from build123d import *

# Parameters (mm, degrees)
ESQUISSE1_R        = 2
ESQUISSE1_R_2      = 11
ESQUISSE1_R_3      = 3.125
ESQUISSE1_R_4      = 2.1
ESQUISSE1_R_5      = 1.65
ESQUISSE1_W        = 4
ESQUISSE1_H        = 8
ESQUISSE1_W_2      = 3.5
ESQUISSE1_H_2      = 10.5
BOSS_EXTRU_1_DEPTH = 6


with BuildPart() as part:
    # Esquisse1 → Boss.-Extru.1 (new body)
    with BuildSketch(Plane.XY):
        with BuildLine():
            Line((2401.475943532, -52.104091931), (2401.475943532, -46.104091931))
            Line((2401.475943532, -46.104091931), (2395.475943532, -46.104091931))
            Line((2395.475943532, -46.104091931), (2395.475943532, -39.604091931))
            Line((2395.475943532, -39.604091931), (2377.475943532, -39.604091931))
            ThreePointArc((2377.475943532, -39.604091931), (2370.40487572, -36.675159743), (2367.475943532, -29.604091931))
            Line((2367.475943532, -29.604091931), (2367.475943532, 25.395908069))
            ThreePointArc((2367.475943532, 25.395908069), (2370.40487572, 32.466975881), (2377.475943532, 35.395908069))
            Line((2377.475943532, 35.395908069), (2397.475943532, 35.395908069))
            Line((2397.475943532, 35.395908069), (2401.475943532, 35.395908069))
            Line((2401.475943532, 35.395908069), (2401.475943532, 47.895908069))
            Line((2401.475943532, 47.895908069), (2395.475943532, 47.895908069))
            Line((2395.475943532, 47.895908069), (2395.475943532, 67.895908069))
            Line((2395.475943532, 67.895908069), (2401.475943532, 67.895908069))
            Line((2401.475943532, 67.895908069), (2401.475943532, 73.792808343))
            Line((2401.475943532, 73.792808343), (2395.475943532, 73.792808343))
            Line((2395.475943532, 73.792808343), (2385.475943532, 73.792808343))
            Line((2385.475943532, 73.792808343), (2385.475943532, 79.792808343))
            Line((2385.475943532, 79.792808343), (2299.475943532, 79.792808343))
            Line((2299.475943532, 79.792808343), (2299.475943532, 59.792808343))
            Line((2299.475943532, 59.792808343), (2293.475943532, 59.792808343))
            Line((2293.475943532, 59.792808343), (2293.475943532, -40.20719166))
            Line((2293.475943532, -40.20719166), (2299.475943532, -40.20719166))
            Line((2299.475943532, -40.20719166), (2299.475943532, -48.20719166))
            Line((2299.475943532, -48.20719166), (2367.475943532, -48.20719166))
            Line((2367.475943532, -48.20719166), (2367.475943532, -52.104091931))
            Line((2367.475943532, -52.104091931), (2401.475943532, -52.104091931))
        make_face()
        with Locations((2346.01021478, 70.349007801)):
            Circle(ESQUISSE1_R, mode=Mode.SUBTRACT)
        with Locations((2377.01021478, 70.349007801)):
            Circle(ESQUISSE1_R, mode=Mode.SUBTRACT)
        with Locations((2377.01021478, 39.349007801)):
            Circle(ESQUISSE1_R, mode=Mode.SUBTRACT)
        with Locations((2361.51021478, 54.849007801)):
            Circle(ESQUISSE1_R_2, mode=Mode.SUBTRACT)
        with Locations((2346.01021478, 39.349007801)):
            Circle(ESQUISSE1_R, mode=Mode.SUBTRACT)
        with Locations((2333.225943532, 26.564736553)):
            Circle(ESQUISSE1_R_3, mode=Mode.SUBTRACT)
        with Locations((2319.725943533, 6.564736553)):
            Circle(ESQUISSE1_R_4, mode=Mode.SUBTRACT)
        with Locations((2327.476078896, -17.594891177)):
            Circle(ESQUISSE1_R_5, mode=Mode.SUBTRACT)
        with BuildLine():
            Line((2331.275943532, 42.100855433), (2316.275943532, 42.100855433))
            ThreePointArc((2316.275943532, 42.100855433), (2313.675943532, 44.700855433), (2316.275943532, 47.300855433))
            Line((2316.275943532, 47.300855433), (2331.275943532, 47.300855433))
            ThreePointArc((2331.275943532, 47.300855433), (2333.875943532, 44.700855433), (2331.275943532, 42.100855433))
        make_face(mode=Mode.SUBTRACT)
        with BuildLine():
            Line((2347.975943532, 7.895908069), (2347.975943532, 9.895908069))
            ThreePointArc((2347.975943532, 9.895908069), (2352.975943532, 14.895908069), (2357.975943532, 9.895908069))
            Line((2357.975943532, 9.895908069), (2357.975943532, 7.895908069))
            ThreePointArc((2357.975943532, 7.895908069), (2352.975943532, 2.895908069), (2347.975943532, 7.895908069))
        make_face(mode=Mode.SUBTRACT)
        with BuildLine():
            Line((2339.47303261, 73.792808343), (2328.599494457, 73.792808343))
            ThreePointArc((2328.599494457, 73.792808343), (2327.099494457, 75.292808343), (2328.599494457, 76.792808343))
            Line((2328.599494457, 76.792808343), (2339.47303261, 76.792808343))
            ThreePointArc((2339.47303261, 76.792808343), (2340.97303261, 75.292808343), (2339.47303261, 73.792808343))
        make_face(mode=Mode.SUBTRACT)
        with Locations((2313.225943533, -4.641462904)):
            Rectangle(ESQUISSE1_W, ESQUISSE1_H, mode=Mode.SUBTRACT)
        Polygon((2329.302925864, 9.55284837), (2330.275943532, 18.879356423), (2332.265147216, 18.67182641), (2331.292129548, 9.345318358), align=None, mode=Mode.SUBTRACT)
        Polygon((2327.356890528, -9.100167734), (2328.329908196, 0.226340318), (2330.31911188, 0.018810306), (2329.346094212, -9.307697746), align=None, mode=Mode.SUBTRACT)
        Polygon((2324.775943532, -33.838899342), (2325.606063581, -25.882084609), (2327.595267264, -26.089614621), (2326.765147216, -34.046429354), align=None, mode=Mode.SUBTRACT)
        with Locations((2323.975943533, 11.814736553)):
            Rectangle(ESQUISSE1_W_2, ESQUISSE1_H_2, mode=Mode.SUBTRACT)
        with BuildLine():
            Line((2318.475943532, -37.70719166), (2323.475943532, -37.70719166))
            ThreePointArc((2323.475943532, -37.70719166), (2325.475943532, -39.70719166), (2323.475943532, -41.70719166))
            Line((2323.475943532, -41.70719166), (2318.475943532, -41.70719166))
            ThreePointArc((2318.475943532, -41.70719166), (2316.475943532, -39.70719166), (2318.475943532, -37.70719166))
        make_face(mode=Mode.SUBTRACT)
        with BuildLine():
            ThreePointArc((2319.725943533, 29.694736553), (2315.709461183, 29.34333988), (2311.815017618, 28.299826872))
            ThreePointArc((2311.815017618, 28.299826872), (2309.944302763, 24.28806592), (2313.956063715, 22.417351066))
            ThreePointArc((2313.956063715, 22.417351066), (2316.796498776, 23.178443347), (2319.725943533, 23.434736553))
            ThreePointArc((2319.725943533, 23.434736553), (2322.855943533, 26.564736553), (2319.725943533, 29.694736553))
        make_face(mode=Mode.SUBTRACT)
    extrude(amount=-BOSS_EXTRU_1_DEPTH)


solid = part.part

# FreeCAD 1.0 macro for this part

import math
import FreeCAD as App
import Part
import Sketcher

V = App.Vector


def add_polygon(sketch, points):
    """Adds a closed chain of lines whose ends are joined by coincident constraints."""
    first, n = sketch.GeometryCount, len(points)
    for a, b in zip(points, points[1:] + points[:1]):
        sketch.addGeometry(Part.LineSegment(App.Vector(*a, 0), App.Vector(*b, 0)), False)
    for i in range(n):
        sketch.addConstraint(Sketcher.Constraint("Coincident", first + i, 2, first + (i + 1) % n, 1))

doc = App.newDocument("Part")
params = doc.addObject("Spreadsheet::Sheet", "Params")
for row, (alias, value) in enumerate([
    ("sketch1_diameter", "4 mm"),
    ("sketch1_diameter2", "22 mm"),
    ("sketch1_radius", "10 mm"),
    ("sketch1_radius2", "5 mm"),
    ("sketch1_diameter3", "3.3 mm"),
    ("pad1_length", "6 mm"),
], start=1):
    params.set(f"A{row}", alias)
    params.set(f"B{row}", "=" + value)
    params.setAlias(f"B{row}", alias)

body = doc.addObject("PartDesign::Body", "Body")

# Sketch on XY plane
sketch1 = body.newObject("Sketcher::SketchObject", "Sketch")
sketch1.AttachmentSupport = (doc.getObject("XY_Plane"), [""])
sketch1.MapMode = "FlatFace"
sketch1.addGeometry(Part.LineSegment(V(2401.5, -52.1, 0), V(2401.5, -46.1, 0)), False)  # 0
sketch1.addGeometry(Part.LineSegment(V(2401.5, -46.1, 0), V(2395.5, -46.1, 0)), False)  # 1
sketch1.addGeometry(Part.LineSegment(V(2395.5, -46.1, 0), V(2395.5, -39.6, 0)), False)  # 2
sketch1.addGeometry(Part.LineSegment(V(2395.5, -39.6, 0), V(2377.5, -39.6, 0)), False)  # 3
sketch1.addGeometry(Part.ArcOfCircle(Part.Circle(V(2377.5, -29.6, 0), V(0, 0, 1), 10), math.radians(180), math.radians(270)), False)  # 4
sketch1.addGeometry(Part.LineSegment(V(2367.5, -29.6, 0), V(2367.5, 25.4, 0)), False)  # 5
sketch1.addGeometry(Part.ArcOfCircle(Part.Circle(V(2377.5, 25.4, 0), V(0, 0, 1), 10), math.radians(90), math.radians(180)), False)  # 6
sketch1.addGeometry(Part.LineSegment(V(2377.5, 35.4, 0), V(2401.5, 35.4, 0)), False)  # 7
sketch1.addGeometry(Part.LineSegment(V(2401.5, 35.4, 0), V(2401.5, 47.9, 0)), False)  # 8
sketch1.addGeometry(Part.LineSegment(V(2401.5, 47.9, 0), V(2395.5, 47.9, 0)), False)  # 9
sketch1.addGeometry(Part.LineSegment(V(2395.5, 47.9, 0), V(2395.5, 67.9, 0)), False)  # 10
sketch1.addGeometry(Part.LineSegment(V(2395.5, 67.9, 0), V(2401.5, 67.9, 0)), False)  # 11
sketch1.addGeometry(Part.LineSegment(V(2401.5, 67.9, 0), V(2401.5, 73.8, 0)), False)  # 12
sketch1.addGeometry(Part.LineSegment(V(2401.5, 73.8, 0), V(2385.5, 73.8, 0)), False)  # 13
sketch1.addGeometry(Part.LineSegment(V(2385.5, 73.8, 0), V(2385.5, 79.8, 0)), False)  # 14
sketch1.addGeometry(Part.LineSegment(V(2385.5, 79.8, 0), V(2299.5, 79.8, 0)), False)  # 15
sketch1.addGeometry(Part.LineSegment(V(2299.5, 79.8, 0), V(2299.5, 59.8, 0)), False)  # 16
sketch1.addGeometry(Part.LineSegment(V(2299.5, 59.8, 0), V(2293.5, 59.8, 0)), False)  # 17
sketch1.addGeometry(Part.LineSegment(V(2293.5, 59.8, 0), V(2293.5, -40.2, 0)), False)  # 18
sketch1.addGeometry(Part.LineSegment(V(2293.5, -40.2, 0), V(2299.5, -40.2, 0)), False)  # 19
sketch1.addGeometry(Part.LineSegment(V(2299.5, -40.2, 0), V(2299.5, -48.2, 0)), False)  # 20
sketch1.addGeometry(Part.LineSegment(V(2299.5, -48.2, 0), V(2367.5, -48.2, 0)), False)  # 21
sketch1.addGeometry(Part.LineSegment(V(2367.5, -48.2, 0), V(2367.5, -52.1, 0)), False)  # 22
sketch1.addGeometry(Part.LineSegment(V(2367.5, -52.1, 0), V(2401.5, -52.1, 0)), False)  # 23
sketch1.addGeometry(Part.ArcOfCircle(Part.Circle(V(2318.5, -39.7, 0), V(0, 0, 1), 2), math.radians(90), math.radians(270)), False)  # 24
sketch1.addGeometry(Part.LineSegment(V(2318.5, -37.7, 0), V(2323.5, -37.7, 0)), False)  # 25
sketch1.addGeometry(Part.ArcOfCircle(Part.Circle(V(2323.5, -39.7, 0), V(0, 0, 1), 2), math.radians(-90), math.radians(90)), False)  # 26
sketch1.addGeometry(Part.LineSegment(V(2323.5, -41.7, 0), V(2318.5, -41.7, 0)), False)  # 27
add_polygon(sketch1, [(2326.8, -34), (2324.8, -33.8), (2325.6, -25.9), (2327.6, -26.1)])  # lines 28-31
sketch1.addGeometry(Part.Circle(V(2327.5, -17.6, 0), V(0, 0, 1), 1.6), False)  # 32
add_polygon(sketch1, [(2315.2, -8.6), (2311.2, -8.6), (2311.2, -0.6), (2315.2, -0.6)])  # lines 33-36
sketch1.addGeometry(Part.Circle(V(2319.7, 6.6, 0), V(0, 0, 1), 2.1), False)  # 37
add_polygon(sketch1, [(2325.7, 6.6), (2322.2, 6.6), (2322.2, 17.1), (2325.7, 17.1)])  # lines 38-41
add_polygon(sketch1, [(2329.3, -9.3), (2327.4, -9.1), (2328.3, 0.2), (2330.3, 0)])  # lines 42-45
add_polygon(sketch1, [(2331.3, 9.3), (2329.3, 9.6), (2330.3, 18.9), (2332.3, 18.7)])  # lines 46-49
sketch1.addGeometry(Part.ArcOfCircle(Part.Circle(V(2353, 7.9, 0), V(0, 0, 1), 5), math.radians(180), math.radians(360)), False)  # 50
sketch1.addGeometry(Part.LineSegment(V(2348, 7.9, 0), V(2348, 9.9, 0)), False)  # 51
sketch1.addGeometry(Part.ArcOfCircle(Part.Circle(V(2353, 9.9, 0), V(0, 0, 1), 5), math.radians(0), math.radians(180)), False)  # 52
sketch1.addGeometry(Part.LineSegment(V(2358, 9.9, 0), V(2358, 7.9, 0)), False)  # 53
sketch1.addGeometry(Part.ArcOfCircle(Part.Circle(V(2319.7, 6.6, 0), V(0, 0, 1), 23.1), math.radians(90), math.radians(110)), False)  # 54
sketch1.addGeometry(Part.ArcOfCircle(Part.Circle(V(2319.7, 26.6, 0), V(0, 0, 1), 3.1), math.radians(-90), math.radians(90)), False)  # 55
sketch1.addGeometry(Part.ArcOfCircle(Part.Circle(V(2319.7, 6.6, 0), V(0, 0, 1), 16.9), math.radians(90), math.radians(110)), False)  # 56
sketch1.addGeometry(Part.ArcOfCircle(Part.Circle(V(2312.9, 25.4, 0), V(0, 0, 1), 3.1), math.radians(110), math.radians(290)), False)  # 57
sketch1.addGeometry(Part.ArcOfCircle(Part.Circle(V(2331.3, 44.7, 0), V(0, 0, 1), 2.6), math.radians(-90), math.radians(90)), False)  # 58
sketch1.addGeometry(Part.LineSegment(V(2331.3, 42.1, 0), V(2316.3, 42.1, 0)), False)  # 59
sketch1.addGeometry(Part.ArcOfCircle(Part.Circle(V(2316.3, 44.7, 0), V(0, 0, 1), 2.6), math.radians(90), math.radians(270)), False)  # 60
sketch1.addGeometry(Part.LineSegment(V(2316.3, 47.3, 0), V(2331.3, 47.3, 0)), False)  # 61
sketch1.addGeometry(Part.Circle(V(2333.2, 26.6, 0), V(0, 0, 1), 3.1), False)  # 62
sketch1.addGeometry(Part.ArcOfCircle(Part.Circle(V(2339.5, 75.3, 0), V(0, 0, 1), 1.5), math.radians(-90), math.radians(90)), False)  # 63
sketch1.addGeometry(Part.LineSegment(V(2339.5, 73.8, 0), V(2328.6, 73.8, 0)), False)  # 64
sketch1.addGeometry(Part.ArcOfCircle(Part.Circle(V(2328.6, 75.3, 0), V(0, 0, 1), 1.5), math.radians(90), math.radians(270)), False)  # 65
sketch1.addGeometry(Part.LineSegment(V(2328.6, 76.8, 0), V(2339.5, 76.8, 0)), False)  # 66
sketch1.addGeometry(Part.Circle(V(2346, 39.3, 0), V(0, 0, 1), 2), False)  # 67
sketch1.addGeometry(Part.Circle(V(2377, 39.3, 0), V(0, 0, 1), 2), False)  # 68
sketch1.addGeometry(Part.Circle(V(2361.5, 54.8, 0), V(0, 0, 1), 11), False)  # 69
sketch1.addGeometry(Part.Circle(V(2346, 70.3, 0), V(0, 0, 1), 2), False)  # 70
sketch1.addGeometry(Part.Circle(V(2377, 70.3, 0), V(0, 0, 1), 2), False)  # 71
sketch1.addConstraint(Sketcher.Constraint("Coincident", 0, 2, 1, 1))
sketch1.addConstraint(Sketcher.Constraint("Coincident", 1, 2, 2, 1))
sketch1.addConstraint(Sketcher.Constraint("Coincident", 2, 2, 3, 1))
sketch1.addConstraint(Sketcher.Constraint("Tangent", 3, 2, 4, 2))
sketch1.addConstraint(Sketcher.Constraint("Tangent", 4, 1, 5, 1))
sketch1.addConstraint(Sketcher.Constraint("Tangent", 5, 2, 6, 2))
sketch1.addConstraint(Sketcher.Constraint("Tangent", 6, 1, 7, 1))
sketch1.addConstraint(Sketcher.Constraint("Coincident", 7, 2, 8, 1))
sketch1.addConstraint(Sketcher.Constraint("Coincident", 8, 2, 9, 1))
sketch1.addConstraint(Sketcher.Constraint("Coincident", 9, 2, 10, 1))
sketch1.addConstraint(Sketcher.Constraint("Coincident", 10, 2, 11, 1))
sketch1.addConstraint(Sketcher.Constraint("Coincident", 11, 2, 12, 1))
sketch1.addConstraint(Sketcher.Constraint("Coincident", 12, 2, 13, 1))
sketch1.addConstraint(Sketcher.Constraint("Coincident", 13, 2, 14, 1))
sketch1.addConstraint(Sketcher.Constraint("Coincident", 14, 2, 15, 1))
sketch1.addConstraint(Sketcher.Constraint("Coincident", 15, 2, 16, 1))
sketch1.addConstraint(Sketcher.Constraint("Coincident", 16, 2, 17, 1))
sketch1.addConstraint(Sketcher.Constraint("Coincident", 17, 2, 18, 1))
sketch1.addConstraint(Sketcher.Constraint("Coincident", 18, 2, 19, 1))
sketch1.addConstraint(Sketcher.Constraint("Coincident", 19, 2, 20, 1))
sketch1.addConstraint(Sketcher.Constraint("Coincident", 20, 2, 21, 1))
sketch1.addConstraint(Sketcher.Constraint("Coincident", 21, 2, 22, 1))
sketch1.addConstraint(Sketcher.Constraint("Coincident", 22, 2, 23, 1))
sketch1.addConstraint(Sketcher.Constraint("Coincident", 23, 2, 0, 1))
sketch1.addConstraint(Sketcher.Constraint("Tangent", 24, 1, 25, 1))
sketch1.addConstraint(Sketcher.Constraint("Tangent", 25, 2, 26, 2))
sketch1.addConstraint(Sketcher.Constraint("Tangent", 26, 1, 27, 1))
sketch1.addConstraint(Sketcher.Constraint("Tangent", 27, 2, 24, 2))
sketch1.addConstraint(Sketcher.Constraint("Tangent", 50, 1, 51, 1))
sketch1.addConstraint(Sketcher.Constraint("Tangent", 51, 2, 52, 2))
sketch1.addConstraint(Sketcher.Constraint("Tangent", 52, 1, 53, 1))
sketch1.addConstraint(Sketcher.Constraint("Tangent", 53, 2, 50, 2))
sketch1.addConstraint(Sketcher.Constraint("Tangent", 54, 1, 55, 2))
sketch1.addConstraint(Sketcher.Constraint("Tangent", 55, 1, 56, 1))
sketch1.addConstraint(Sketcher.Constraint("Tangent", 56, 2, 57, 2))
sketch1.addConstraint(Sketcher.Constraint("Tangent", 57, 1, 54, 2))
sketch1.addConstraint(Sketcher.Constraint("Tangent", 58, 1, 59, 1))
sketch1.addConstraint(Sketcher.Constraint("Tangent", 59, 2, 60, 2))
sketch1.addConstraint(Sketcher.Constraint("Tangent", 60, 1, 61, 1))
sketch1.addConstraint(Sketcher.Constraint("Tangent", 61, 2, 58, 2))
sketch1.addConstraint(Sketcher.Constraint("Tangent", 63, 1, 64, 1))
sketch1.addConstraint(Sketcher.Constraint("Tangent", 64, 2, 65, 2))
sketch1.addConstraint(Sketcher.Constraint("Tangent", 65, 1, 66, 1))
sketch1.addConstraint(Sketcher.Constraint("Tangent", 66, 2, 63, 2))
sketch1.addConstraint(Sketcher.Constraint("Vertical", 0))
sketch1.addConstraint(Sketcher.Constraint("Horizontal", 1))
sketch1.addConstraint(Sketcher.Constraint("Vertical", 2))
sketch1.addConstraint(Sketcher.Constraint("Horizontal", 3))
sketch1.addConstraint(Sketcher.Constraint("Vertical", 5))
sketch1.addConstraint(Sketcher.Constraint("Horizontal", 7))
sketch1.addConstraint(Sketcher.Constraint("Vertical", 8))
sketch1.addConstraint(Sketcher.Constraint("Horizontal", 9))
sketch1.addConstraint(Sketcher.Constraint("Vertical", 10))
sketch1.addConstraint(Sketcher.Constraint("Horizontal", 11))
sketch1.addConstraint(Sketcher.Constraint("Vertical", 12))
sketch1.addConstraint(Sketcher.Constraint("Horizontal", 13))
sketch1.addConstraint(Sketcher.Constraint("Vertical", 14))
sketch1.addConstraint(Sketcher.Constraint("Horizontal", 15))
sketch1.addConstraint(Sketcher.Constraint("Vertical", 16))
sketch1.addConstraint(Sketcher.Constraint("Horizontal", 17))
sketch1.addConstraint(Sketcher.Constraint("Vertical", 18))
sketch1.addConstraint(Sketcher.Constraint("Horizontal", 19))
sketch1.addConstraint(Sketcher.Constraint("Vertical", 20))
sketch1.addConstraint(Sketcher.Constraint("Horizontal", 21))
sketch1.addConstraint(Sketcher.Constraint("Vertical", 22))
sketch1.addConstraint(Sketcher.Constraint("Horizontal", 23))
sketch1.addConstraint(Sketcher.Constraint("Horizontal", 25))
sketch1.addConstraint(Sketcher.Constraint("Horizontal", 27))
sketch1.addConstraint(Sketcher.Constraint("Horizontal", 33))
sketch1.addConstraint(Sketcher.Constraint("Vertical", 34))
sketch1.addConstraint(Sketcher.Constraint("Horizontal", 35))
sketch1.addConstraint(Sketcher.Constraint("Vertical", 36))
sketch1.addConstraint(Sketcher.Constraint("Horizontal", 38))
sketch1.addConstraint(Sketcher.Constraint("Vertical", 39))
sketch1.addConstraint(Sketcher.Constraint("Horizontal", 40))
sketch1.addConstraint(Sketcher.Constraint("Vertical", 41))
sketch1.addConstraint(Sketcher.Constraint("Vertical", 51))
sketch1.addConstraint(Sketcher.Constraint("Vertical", 53))
sketch1.addConstraint(Sketcher.Constraint("Horizontal", 59))
sketch1.addConstraint(Sketcher.Constraint("Horizontal", 61))
sketch1.addConstraint(Sketcher.Constraint("Horizontal", 64))
sketch1.addConstraint(Sketcher.Constraint("Horizontal", 66))
sketch1.addConstraint(Sketcher.Constraint("Coincident", 54, 3, 37, 3))
sketch1.addConstraint(Sketcher.Constraint("Coincident", 56, 3, 37, 3))
sketch1.addConstraint(Sketcher.Constraint("Equal", 4, 6))
sketch1.addConstraint(Sketcher.Constraint("Equal", 26, 67))
sketch1.addConstraint(Sketcher.Constraint("Equal", 67, 68))
sketch1.addConstraint(Sketcher.Constraint("Equal", 68, 70))
sketch1.addConstraint(Sketcher.Constraint("Equal", 70, 71))
sketch1.addConstraint(Sketcher.Constraint("Perpendicular", 28, 29))
sketch1.addConstraint(Sketcher.Constraint("Perpendicular", 29, 30))
sketch1.addConstraint(Sketcher.Constraint("Perpendicular", 30, 31))
sketch1.addConstraint(Sketcher.Constraint("Perpendicular", 31, 42))
sketch1.addConstraint(Sketcher.Constraint("Perpendicular", 42, 43))
sketch1.addConstraint(Sketcher.Constraint("Perpendicular", 43, 44))
sketch1.addConstraint(Sketcher.Constraint("Perpendicular", 44, 45))
sketch1.addConstraint(Sketcher.Constraint("Perpendicular", 45, 46))
sketch1.addConstraint(Sketcher.Constraint("Perpendicular", 46, 47))
sketch1.addConstraint(Sketcher.Constraint("Perpendicular", 47, 48))
sketch1.addConstraint(Sketcher.Constraint("Perpendicular", 48, 49))
sketch1.addConstraint(Sketcher.Constraint("Horizontal", 55, 3, 62, 3))
sketch1.addConstraint(Sketcher.Constraint("Horizontal", 67, 3, 68, 3))
sketch1.addConstraint(Sketcher.Constraint("Horizontal", 70, 3, 71, 3))
sketch1.addConstraint(Sketcher.Constraint("Horizontal", 56, 3, 38, 2))
sketch1.addConstraint(Sketcher.Constraint("Horizontal", 13, 2, 63, 1))
sketch1.addConstraint(Sketcher.Constraint("Vertical", 54, 3, 55, 3))
sketch1.addConstraint(Sketcher.Constraint("Vertical", 67, 3, 70, 3))
sketch1.addConstraint(Sketcher.Constraint("Vertical", 68, 3, 71, 3))
sketch1.addConstraint(Sketcher.Constraint("Vertical", 0, 2, 7, 2))
sketch1.addConstraint(Sketcher.Constraint("Vertical", 2, 2, 9, 2))
sketch1.addConstraint(Sketcher.Constraint("Vertical", 8, 2, 11, 2))
sketch1.addConstraint(Sketcher.Constraint("Vertical", 16, 2, 19, 2))
sketch1.addConstraint(Sketcher.Constraint("Vertical", 5, 2, 21, 2))
sketch1.addConstraint(Sketcher.Constraint("Equal", 11, 17))
sketch1.addConstraint(Sketcher.Constraint("Equal", 19, 0))
sketch1.addConstraint(Sketcher.Constraint("Equal", 0, 14))
sketch1.addConstraint(Sketcher.Constraint("Equal", 10, 16))
sketch1.addConstraint(Sketcher.Constraint("Equal", 20, 34))
sketch1.addConstraint(Sketcher.Constraint("Equal", 30, 42))
sketch1.addConstraint(Sketcher.Constraint("Equal", 44, 46))
sketch1.addConstraint(Sketcher.Constraint("Equal", 45, 47))
sketch1.addConstraint(Sketcher.Constraint("Diameter", 67, 4.0))
sketch1.addConstraint(Sketcher.Constraint("Diameter", 69, 22.0))
sketch1.addConstraint(Sketcher.Constraint("Radius", 4, 10.0))
sketch1.addConstraint(Sketcher.Constraint("Radius", 50, 5.0))
sketch1.addConstraint(Sketcher.Constraint("Diameter", 32, 3.3))
sketch1.addConstraint(Sketcher.Constraint("Diameter", 37, 4.2))
sketch1.addConstraint(Sketcher.Constraint("Radius", 58, 2.6))
sketch1.addConstraint(Sketcher.Constraint("Radius", 63, 1.5))
sketch1.addConstraint(Sketcher.Constraint("Diameter", 62, 6.25))
sketch1.addConstraint(Sketcher.Constraint("DistanceX", 1, 2, 1, 1, 6.0))
sketch1.addConstraint(Sketcher.Constraint("DistanceX", 3, 2, 3, 1, 18.0))
sketch1.addConstraint(Sketcher.Constraint("DistanceX", 13, 2, 13, 1, 16.0))
sketch1.addConstraint(Sketcher.Constraint("DistanceX", 15, 2, 15, 1, 86.0))
sketch1.addConstraint(Sketcher.Constraint("DistanceX", 25, 1, 25, 2, 5.0))
sketch1.addConstraint(Sketcher.Constraint("DistanceX", 33, 2, 33, 1, 4.0))
sketch1.addConstraint(Sketcher.Constraint("DistanceX", 59, 2, 59, 1, 15.0))
sketch1.addConstraint(Sketcher.Constraint("DistanceY", 5, 1, 5, 2, 55.0))
sketch1.addConstraint(Sketcher.Constraint("DistanceY", 10, 1, 10, 2, 20.0))
sketch1.addConstraint(Sketcher.Constraint("DistanceY", 18, 2, 18, 1, 100.0))
sketch1.addConstraint(Sketcher.Constraint("DistanceY", 20, 2, 20, 1, 8.0))
sketch1.addConstraint(Sketcher.Constraint("DistanceY", 51, 1, 51, 2, 2.0))
sketch1.addConstraint(Sketcher.Constraint("Radius", 54, 23.13))
sketch1.addConstraint(Sketcher.Constraint("Radius", 55, 3.13))
sketch1.addConstraint(Sketcher.Constraint("Distance", 28, 2.0))
sketch1.addConstraint(Sketcher.Constraint("Distance", 29, 8.0))
sketch1.addConstraint(Sketcher.Constraint("DistanceX", 38, 2, 38, 1, 3.5))
sketch1.addConstraint(Sketcher.Constraint("DistanceY", 2, 1, 2, 2, 6.5))
sketch1.addConstraint(Sketcher.Constraint("DistanceY", 8, 1, 8, 2, 12.5))
sketch1.addConstraint(Sketcher.Constraint("DistanceY", 39, 1, 39, 2, 10.5))
sketch1.addConstraint(Sketcher.Constraint("DistanceY", 12, 1, 12, 2, 5.8969))
sketch1.addConstraint(Sketcher.Constraint("DistanceX", 64, 2, 64, 1, 10.873538))
sketch1.addConstraint(Sketcher.Constraint("DistanceY", 28, 2, -1, 1, 33.838899))
sketch1.addConstraint(Sketcher.Constraint("DistanceY", 4, 3, -1, 1, 29.604092))
sketch1.addConstraint(Sketcher.Constraint("DistanceY", 24, 3, -1, 1, 39.707192))
sketch1.addConstraint(Sketcher.Constraint("DistanceX", -1, 1, 32, 3, 2327.476079))
sketch1.addConstraint(Sketcher.Constraint("DistanceY", 32, 3, -1, 1, 17.594891))
sketch1.addConstraint(Sketcher.Constraint("DistanceY", -1, 1, 50, 3, 7.895908))
sketch1.addConstraint(Sketcher.Constraint("DistanceX", -1, 1, 57, 3, 2312.885541))
sketch1.addConstraint(Sketcher.Constraint("DistanceY", -1, 1, 57, 3, 25.358589))
sketch1.addConstraint(Sketcher.Constraint("DistanceY", 31, 2, -1, 1, 34.046429))
sketch1.addConstraint(Sketcher.Constraint("DistanceX", -1, 1, 42, 2, 2327.356891))
sketch1.addConstraint(Sketcher.Constraint("DistanceX", -1, 1, 43, 2, 2328.329908))
sketch1.addConstraint(Sketcher.Constraint("DistanceY", -1, 1, 43, 2, 0.22634))
sketch1.addConstraint(Sketcher.Constraint("DistanceY", -1, 1, 46, 2, 9.552848))
sketch1.addConstraint(Sketcher.Constraint("DistanceX", -1, 1, 49, 2, 2331.29213))
sketch1.addConstraint(Sketcher.Constraint("DistanceY", -1, 1, 56, 2, 22.417351))
sketch1.addConstraint(Sketcher.Constraint("DistanceX", -1, 1, 4, 3, 2377.475944))
sketch1.addConstraint(Sketcher.Constraint("DistanceX", -1, 1, 24, 3, 2318.475944))
sketch1.addConstraint(Sketcher.Constraint("DistanceX", -1, 1, 50, 3, 2352.975944))
sketch1.addConstraint(Sketcher.Constraint("DistanceX", -1, 1, 58, 3, 2331.275944))
sketch1.addConstraint(Sketcher.Constraint("DistanceY", -1, 1, 58, 3, 44.700855))
sketch1.addConstraint(Sketcher.Constraint("DistanceX", -1, 1, 62, 3, 2333.225944))
sketch1.addConstraint(Sketcher.Constraint("DistanceX", -1, 1, 63, 3, 2339.473033))
sketch1.addConstraint(Sketcher.Constraint("DistanceX", -1, 1, 67, 3, 2346.010215))
sketch1.addConstraint(Sketcher.Constraint("DistanceY", -1, 1, 67, 3, 39.349008))
sketch1.addConstraint(Sketcher.Constraint("DistanceX", -1, 1, 68, 3, 2377.010215))
sketch1.addConstraint(Sketcher.Constraint("DistanceX", -1, 1, 69, 3, 2361.510215))
sketch1.addConstraint(Sketcher.Constraint("DistanceY", -1, 1, 69, 3, 54.849008))
sketch1.addConstraint(Sketcher.Constraint("DistanceY", -1, 1, 70, 3, 70.349008))
sketch1.addConstraint(Sketcher.Constraint("DistanceX", -1, 1, 28, 2, 2324.775944))
sketch1.addConstraint(Sketcher.Constraint("DistanceX", -1, 1, 33, 2, 2311.225944))
sketch1.addConstraint(Sketcher.Constraint("DistanceY", 33, 2, -1, 1, 8.641463))
sketch1.addConstraint(Sketcher.Constraint("DistanceX", -1, 1, 38, 2, 2322.225944))
sketch1.setExpression("Constraints[141]", "Params.sketch1_diameter")
sketch1.setExpression("Constraints[142]", "Params.sketch1_diameter2")
sketch1.setExpression("Constraints[143]", "Params.sketch1_radius")
sketch1.setExpression("Constraints[144]", "Params.sketch1_radius2")
sketch1.setExpression("Constraints[145]", "Params.sketch1_diameter3")
pad1 = body.newObject("PartDesign::Pad", "Pad")
pad1.Profile = sketch1
pad1.setExpression("Length", "Params.pad1_length")
pad1.Reversed = True

doc.recompute()
